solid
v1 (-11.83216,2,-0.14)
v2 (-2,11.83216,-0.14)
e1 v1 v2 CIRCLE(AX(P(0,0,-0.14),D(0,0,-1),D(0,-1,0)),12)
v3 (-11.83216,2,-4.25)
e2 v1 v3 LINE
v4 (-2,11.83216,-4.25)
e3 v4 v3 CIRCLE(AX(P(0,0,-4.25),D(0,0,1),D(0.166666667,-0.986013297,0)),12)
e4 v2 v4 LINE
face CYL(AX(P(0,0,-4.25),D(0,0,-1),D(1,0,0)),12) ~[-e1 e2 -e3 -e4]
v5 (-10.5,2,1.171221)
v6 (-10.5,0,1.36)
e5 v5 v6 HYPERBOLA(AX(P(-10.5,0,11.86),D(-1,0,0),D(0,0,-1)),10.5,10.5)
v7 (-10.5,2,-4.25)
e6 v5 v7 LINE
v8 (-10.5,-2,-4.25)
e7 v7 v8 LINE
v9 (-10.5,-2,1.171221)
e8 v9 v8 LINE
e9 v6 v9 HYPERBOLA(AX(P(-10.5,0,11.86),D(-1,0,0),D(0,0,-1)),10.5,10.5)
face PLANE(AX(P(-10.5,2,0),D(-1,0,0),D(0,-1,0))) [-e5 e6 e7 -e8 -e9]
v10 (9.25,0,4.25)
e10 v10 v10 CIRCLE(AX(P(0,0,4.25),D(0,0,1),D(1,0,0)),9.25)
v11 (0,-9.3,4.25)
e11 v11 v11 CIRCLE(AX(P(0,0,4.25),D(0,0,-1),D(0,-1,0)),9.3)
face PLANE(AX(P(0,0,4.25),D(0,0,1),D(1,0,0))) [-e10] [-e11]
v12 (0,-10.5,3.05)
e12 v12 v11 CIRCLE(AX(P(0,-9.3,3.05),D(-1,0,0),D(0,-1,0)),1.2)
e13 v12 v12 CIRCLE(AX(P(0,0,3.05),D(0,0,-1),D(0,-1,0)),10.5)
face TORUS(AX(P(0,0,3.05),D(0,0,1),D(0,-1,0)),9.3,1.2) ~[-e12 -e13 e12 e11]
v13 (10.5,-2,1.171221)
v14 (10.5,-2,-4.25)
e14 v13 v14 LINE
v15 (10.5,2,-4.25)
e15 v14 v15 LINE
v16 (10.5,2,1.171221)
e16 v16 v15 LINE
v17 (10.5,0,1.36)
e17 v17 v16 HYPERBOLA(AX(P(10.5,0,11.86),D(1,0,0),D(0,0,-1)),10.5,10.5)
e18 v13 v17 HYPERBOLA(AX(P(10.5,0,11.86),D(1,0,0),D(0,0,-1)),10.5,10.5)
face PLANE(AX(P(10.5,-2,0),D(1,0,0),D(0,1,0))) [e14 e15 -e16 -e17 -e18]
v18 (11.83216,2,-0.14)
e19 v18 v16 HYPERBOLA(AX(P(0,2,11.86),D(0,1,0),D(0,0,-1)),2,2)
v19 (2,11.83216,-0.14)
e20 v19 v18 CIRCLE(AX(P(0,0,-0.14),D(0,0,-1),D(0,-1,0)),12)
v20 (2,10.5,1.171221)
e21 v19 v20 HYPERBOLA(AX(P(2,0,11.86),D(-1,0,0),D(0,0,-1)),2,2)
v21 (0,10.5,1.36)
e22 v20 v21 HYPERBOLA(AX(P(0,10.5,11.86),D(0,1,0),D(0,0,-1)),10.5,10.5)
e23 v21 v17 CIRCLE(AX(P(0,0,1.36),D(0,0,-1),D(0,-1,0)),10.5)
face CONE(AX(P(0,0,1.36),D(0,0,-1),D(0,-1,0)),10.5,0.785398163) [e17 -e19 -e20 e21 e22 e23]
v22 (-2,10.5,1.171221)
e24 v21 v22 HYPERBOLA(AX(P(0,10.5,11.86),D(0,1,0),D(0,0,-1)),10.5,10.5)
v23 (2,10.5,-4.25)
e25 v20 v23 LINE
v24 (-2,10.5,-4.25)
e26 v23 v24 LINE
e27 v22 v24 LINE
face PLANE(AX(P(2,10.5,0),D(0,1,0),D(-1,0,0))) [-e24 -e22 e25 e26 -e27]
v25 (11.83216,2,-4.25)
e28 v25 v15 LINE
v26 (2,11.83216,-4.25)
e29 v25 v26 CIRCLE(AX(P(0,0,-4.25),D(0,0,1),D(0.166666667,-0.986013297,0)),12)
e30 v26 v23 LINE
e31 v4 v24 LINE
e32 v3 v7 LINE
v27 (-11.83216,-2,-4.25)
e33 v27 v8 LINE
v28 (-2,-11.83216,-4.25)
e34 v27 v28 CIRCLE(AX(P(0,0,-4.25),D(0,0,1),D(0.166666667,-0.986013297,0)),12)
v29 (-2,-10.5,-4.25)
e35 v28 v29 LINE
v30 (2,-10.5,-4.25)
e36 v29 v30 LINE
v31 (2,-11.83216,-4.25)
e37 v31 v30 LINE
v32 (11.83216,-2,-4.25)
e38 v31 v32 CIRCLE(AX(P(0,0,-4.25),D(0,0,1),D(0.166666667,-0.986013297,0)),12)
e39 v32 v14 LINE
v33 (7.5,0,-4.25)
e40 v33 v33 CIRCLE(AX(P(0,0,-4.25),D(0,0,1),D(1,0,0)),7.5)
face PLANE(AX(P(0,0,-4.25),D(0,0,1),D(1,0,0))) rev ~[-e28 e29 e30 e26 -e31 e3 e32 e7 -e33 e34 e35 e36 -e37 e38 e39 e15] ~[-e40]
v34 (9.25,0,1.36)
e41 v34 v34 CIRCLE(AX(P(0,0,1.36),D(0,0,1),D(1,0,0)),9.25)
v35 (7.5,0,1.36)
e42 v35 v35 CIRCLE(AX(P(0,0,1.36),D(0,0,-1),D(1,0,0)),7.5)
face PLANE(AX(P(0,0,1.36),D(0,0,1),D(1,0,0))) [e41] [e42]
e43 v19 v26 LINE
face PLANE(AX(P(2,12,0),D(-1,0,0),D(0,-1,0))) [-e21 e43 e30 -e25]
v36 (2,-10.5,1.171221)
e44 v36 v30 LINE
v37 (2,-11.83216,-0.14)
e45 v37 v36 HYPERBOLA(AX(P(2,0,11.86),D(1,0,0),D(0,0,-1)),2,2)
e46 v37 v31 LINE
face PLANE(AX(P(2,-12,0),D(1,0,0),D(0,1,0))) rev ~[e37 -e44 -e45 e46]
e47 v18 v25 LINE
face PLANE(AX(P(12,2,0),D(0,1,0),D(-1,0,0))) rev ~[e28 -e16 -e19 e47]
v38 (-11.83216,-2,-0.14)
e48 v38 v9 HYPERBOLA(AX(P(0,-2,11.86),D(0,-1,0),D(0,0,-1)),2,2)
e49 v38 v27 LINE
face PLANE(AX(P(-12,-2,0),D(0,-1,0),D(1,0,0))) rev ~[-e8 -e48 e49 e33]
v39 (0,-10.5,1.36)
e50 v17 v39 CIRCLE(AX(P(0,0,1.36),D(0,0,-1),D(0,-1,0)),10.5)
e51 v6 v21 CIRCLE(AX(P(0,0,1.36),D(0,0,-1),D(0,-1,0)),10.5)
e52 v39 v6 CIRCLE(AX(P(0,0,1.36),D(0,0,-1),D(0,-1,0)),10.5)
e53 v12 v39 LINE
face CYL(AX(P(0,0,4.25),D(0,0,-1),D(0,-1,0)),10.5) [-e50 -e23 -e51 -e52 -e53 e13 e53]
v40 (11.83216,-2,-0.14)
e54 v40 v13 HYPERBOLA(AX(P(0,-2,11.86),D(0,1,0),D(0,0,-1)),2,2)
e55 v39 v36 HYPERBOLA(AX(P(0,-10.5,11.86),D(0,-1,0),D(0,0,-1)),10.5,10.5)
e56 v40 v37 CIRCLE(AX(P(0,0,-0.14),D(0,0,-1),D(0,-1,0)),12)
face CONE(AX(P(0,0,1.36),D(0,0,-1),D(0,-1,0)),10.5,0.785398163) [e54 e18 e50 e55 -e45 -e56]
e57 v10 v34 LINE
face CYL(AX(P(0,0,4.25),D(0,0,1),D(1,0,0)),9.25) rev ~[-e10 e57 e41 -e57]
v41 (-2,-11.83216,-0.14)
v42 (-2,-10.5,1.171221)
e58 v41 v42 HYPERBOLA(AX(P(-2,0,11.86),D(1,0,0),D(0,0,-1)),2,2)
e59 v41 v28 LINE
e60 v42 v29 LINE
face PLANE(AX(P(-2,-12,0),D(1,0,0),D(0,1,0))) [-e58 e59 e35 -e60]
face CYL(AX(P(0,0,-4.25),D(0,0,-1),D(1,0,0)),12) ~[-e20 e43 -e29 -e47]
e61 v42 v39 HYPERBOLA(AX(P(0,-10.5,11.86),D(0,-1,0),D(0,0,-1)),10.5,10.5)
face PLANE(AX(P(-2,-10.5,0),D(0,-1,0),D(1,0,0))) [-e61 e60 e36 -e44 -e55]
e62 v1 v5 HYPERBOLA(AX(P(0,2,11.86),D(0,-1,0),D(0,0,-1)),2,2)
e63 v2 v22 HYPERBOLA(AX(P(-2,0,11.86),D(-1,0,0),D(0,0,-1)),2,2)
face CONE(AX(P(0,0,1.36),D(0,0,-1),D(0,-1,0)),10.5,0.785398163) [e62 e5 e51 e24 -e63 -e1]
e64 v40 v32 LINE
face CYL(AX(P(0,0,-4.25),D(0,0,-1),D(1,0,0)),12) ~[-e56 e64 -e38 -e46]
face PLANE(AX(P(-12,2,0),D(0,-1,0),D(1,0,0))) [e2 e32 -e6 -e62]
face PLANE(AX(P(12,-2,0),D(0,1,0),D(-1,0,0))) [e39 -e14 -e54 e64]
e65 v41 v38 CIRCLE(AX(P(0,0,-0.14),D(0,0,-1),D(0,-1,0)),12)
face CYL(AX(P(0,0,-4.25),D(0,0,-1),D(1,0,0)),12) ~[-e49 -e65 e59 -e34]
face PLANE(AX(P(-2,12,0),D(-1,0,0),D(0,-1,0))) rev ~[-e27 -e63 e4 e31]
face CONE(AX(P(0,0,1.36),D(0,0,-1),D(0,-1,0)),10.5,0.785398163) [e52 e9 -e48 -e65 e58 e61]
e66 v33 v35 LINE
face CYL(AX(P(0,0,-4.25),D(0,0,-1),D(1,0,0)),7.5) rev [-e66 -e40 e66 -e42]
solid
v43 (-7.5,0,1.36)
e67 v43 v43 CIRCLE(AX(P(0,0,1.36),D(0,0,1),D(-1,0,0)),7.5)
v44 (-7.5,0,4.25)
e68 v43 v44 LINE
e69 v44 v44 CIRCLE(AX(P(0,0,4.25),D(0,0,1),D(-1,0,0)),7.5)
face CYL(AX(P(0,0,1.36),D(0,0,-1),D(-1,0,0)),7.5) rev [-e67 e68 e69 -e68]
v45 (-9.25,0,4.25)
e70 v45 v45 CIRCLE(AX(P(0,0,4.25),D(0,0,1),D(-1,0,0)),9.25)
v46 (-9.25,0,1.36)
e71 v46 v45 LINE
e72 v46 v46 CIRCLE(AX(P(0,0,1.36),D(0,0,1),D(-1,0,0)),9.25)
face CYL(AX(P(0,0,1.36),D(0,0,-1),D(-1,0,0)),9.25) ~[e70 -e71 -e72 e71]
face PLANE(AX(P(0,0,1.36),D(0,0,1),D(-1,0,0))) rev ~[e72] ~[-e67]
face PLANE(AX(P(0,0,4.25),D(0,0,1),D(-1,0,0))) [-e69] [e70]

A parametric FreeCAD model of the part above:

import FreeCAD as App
import Part
import Sketcher

V = App.Vector
Q = App.Units.Quantity


def edges_at(feature, points):
    """Names of the edges that pass closest to the given points."""
    edges = feature.Shape.Edges
    near = lambda p: min(range(len(edges)), key=lambda i: edges[i].distToShape(Part.Vertex(*p))[0])
    return sorted({f"Edge{near(p) + 1}" for p in points})

doc = App.newDocument("Part")
body = doc.addObject("PartDesign::Body", "Body")

# Sketch on XY plane
sketch1 = body.newObject("Sketcher::SketchObject", "Sketch")
sketch1.AttachmentSupport = (doc.getObject("XY_Plane"), [""])
sketch1.MapMode = "FlatFace"
sketch1.addGeometry(Part.Circle(V(0, 0, 0), V(0, 0, 1), 12), False)
sketch1.addGeometry(Part.Circle(V(0, 0, 0), V(0, 0, 1), 8), False)
sketch1.addConstraint(Sketcher.Constraint("Coincident", 0, 3, -1, 1))
sketch1.addConstraint(Sketcher.Constraint("Coincident", 1, 3, -1, 1))
sketch1.addConstraint(Sketcher.Constraint("Diameter", 0, 24.0))
sketch1.addConstraint(Sketcher.Constraint("Diameter", 1, 15.0))
pad1 = body.newObject("PartDesign::Pad", "Pad")
pad1.Profile = sketch1
pad1.Type = "TwoLengths"
pad1.Length = 4.25
pad1.Length2 = 4.25

# Sketch on XY plane
sketch2 = body.newObject("Sketcher::SketchObject", "Sketch001")
sketch2.AttachmentSupport = (doc.getObject("XY_Plane"), [""])
sketch2.MapMode = "FlatFace"
sketch2.AttachmentOffset = App.Placement(V(0, 0, 4.25), App.Rotation())
sketch2.addGeometry(Part.Circle(V(0, 0, 0), V(0, 0, 1), 12), False)
sketch2.addGeometry(Part.Circle(V(0, 0, 0), V(0, 0, 1), 11), False)
sketch2.addConstraint(Sketcher.Constraint("Coincident", 0, 3, -1, 1))
sketch2.addConstraint(Sketcher.Constraint("Coincident", 1, 3, -1, 1))
sketch2.addConstraint(Sketcher.Constraint("Diameter", 0, 24.0))
sketch2.addConstraint(Sketcher.Constraint("Diameter", 1, 22.0))
pocket1 = body.newObject("PartDesign::Pocket", "Pocket")
pocket1.Profile = sketch2
pocket1.Length = 0.5

# Sketch on XY plane
sketch3 = body.newObject("Sketcher::SketchObject", "Sketch002")
sketch3.AttachmentSupport = (doc.getObject("XY_Plane"), [""])
sketch3.MapMode = "FlatFace"
sketch3.addGeometry(Part.LineSegment(V(-2, -10.5, 0), V(-2, -12, 0)), False)
sketch3.addGeometry(Part.LineSegment(V(-2, -12, 0), V(2, -12, 0)), False)
sketch3.addGeometry(Part.LineSegment(V(2, -12, 0), V(2, -10.5, 0)), False)
sketch3.addGeometry(Part.LineSegment(V(2, -10.5, 0), V(-2, -10.5, 0)), False)
sketch3.addConstraint(Sketcher.Constraint("Coincident", 0, 2, 1, 1))
sketch3.addConstraint(Sketcher.Constraint("Coincident", 1, 2, 2, 1))
sketch3.addConstraint(Sketcher.Constraint("Coincident", 2, 2, 3, 1))
sketch3.addConstraint(Sketcher.Constraint("Coincident", 3, 2, 0, 1))
sketch3.addConstraint(Sketcher.Constraint("Vertical", 0))
sketch3.addConstraint(Sketcher.Constraint("Horizontal", 1))
sketch3.addConstraint(Sketcher.Constraint("Vertical", 2))
sketch3.addConstraint(Sketcher.Constraint("Horizontal", 3))
sketch3.addConstraint(Sketcher.Constraint("DistanceX", 1, 1, 1, 2, 4.0))
sketch3.addConstraint(Sketcher.Constraint("DistanceY", 0, 2, 0, 1, 1.5))
sketch3.addConstraint(Sketcher.Constraint("DistanceX", 0, 2, -1, 1, 2.0))
sketch3.addConstraint(Sketcher.Constraint("DistanceY", 0, 2, -1, 1, 12.0))
pocket2 = body.newObject("PartDesign::Pocket", "Pocket001")
pocket2.Profile = sketch3
pocket2.Length = 36.989284
pocket2.Midplane = True
doc.recompute()

polarpattern = body.newObject("PartDesign::PolarPattern", "PolarPattern")
polarpattern.Originals = [pocket2]
polarpattern.Axis = (doc.getObject("Z_Axis"), [""])
polarpattern.Angle = 360
polarpattern.Occurrences = 4
body.Tip = polarpattern

# Sketch on YZ plane
sketch4 = body.newObject("Sketcher::SketchObject", "Sketch003")
sketch4.AttachmentSupport = (doc.getObject("YZ_Plane"), [""])
sketch4.MapMode = "FlatFace"
sketch4.addGeometry(Part.LineSegment(V(10.5, 1.4, 0), V(12, -0.1, 0)), False)
sketch4.addGeometry(Part.LineSegment(V(12, -0.1, 0), V(12, 4.2, 0)), False)
sketch4.addGeometry(Part.LineSegment(V(12, 4.2, 0), V(10.5, 4.2, 0)), False)
sketch4.addGeometry(Part.LineSegment(V(10.5, 4.2, 0), V(10.5, 1.4, 0)), False)
sketch4.addConstraint(Sketcher.Constraint("Coincident", 0, 2, 1, 1))
sketch4.addConstraint(Sketcher.Constraint("Coincident", 1, 2, 2, 1))
sketch4.addConstraint(Sketcher.Constraint("Coincident", 2, 2, 3, 1))
sketch4.addConstraint(Sketcher.Constraint("Coincident", 3, 2, 0, 1))
sketch4.addConstraint(Sketcher.Constraint("Vertical", 1))
sketch4.addConstraint(Sketcher.Constraint("Horizontal", 2))
sketch4.addConstraint(Sketcher.Constraint("Vertical", 3))
sketch4.addConstraint(Sketcher.Constraint("Angle", 0, Q("-45 deg")))
sketch4.addConstraint(Sketcher.Constraint("DistanceX", 2, 2, 2, 1, 1.5))
sketch4.addConstraint(Sketcher.Constraint("DistanceX", -1, 1, 0, 2, 12.0))
sketch4.addConstraint(Sketcher.Constraint("DistanceY", 1, 1, 1, 2, 4.39))
sketch4.addConstraint(Sketcher.Constraint("DistanceY", 0, 2, -1, 1, 0.14))
groove = body.newObject("PartDesign::Groove", "Groove")
groove.Profile = sketch4
groove.ReferenceAxis = (sketch4, ["V_Axis"])
groove.Angle = 360
doc.recompute()

fillet = body.newObject("PartDesign::Fillet", "Fillet")
fillet.Base = (groove, edges_at(groove, [(0, 10.5, 4.25)]))
fillet.Radius = 1.2

# Sketch on XY plane
sketch5 = body.newObject("Sketcher::SketchObject", "Sketch004")
sketch5.AttachmentSupport = (doc.getObject("XY_Plane"), [""])
sketch5.MapMode = "FlatFace"
sketch5.AttachmentOffset = App.Placement(V(0, 0, 4.25), App.Rotation())
sketch5.addGeometry(Part.Circle(V(0, 0, 0), V(0, 0, 1), 9), False)
sketch5.addConstraint(Sketcher.Constraint("Coincident", 0, 3, -1, 1))
sketch5.addConstraint(Sketcher.Constraint("Diameter", 0, 18.5))
pocket3 = body.newObject("PartDesign::Pocket", "Pocket002")
pocket3.Profile = sketch5
pocket3.Length = 2.89
body2 = doc.addObject("PartDesign::Body", "Body001")

# Sketch on XY plane
sketch6 = body2.newObject("Sketcher::SketchObject", "Sketch005")
sketch6.AttachmentSupport = (doc.getObject("XY_Plane001"), [""])
sketch6.MapMode = "FlatFace"
sketch6.AttachmentOffset = App.Placement(V(0, 0, 1.36), App.Rotation())
sketch6.addGeometry(Part.Circle(V(0, 0, 0), V(0, 0, 1), 9), False)
sketch6.addGeometry(Part.Circle(V(0, 0, 0), V(0, 0, 1), 8), False)
sketch6.addConstraint(Sketcher.Constraint("Coincident", 0, 3, -1, 1))
sketch6.addConstraint(Sketcher.Constraint("Coincident", 1, 3, -1, 1))
sketch6.addConstraint(Sketcher.Constraint("Diameter", 1, 15.0))
sketch6.addConstraint(Sketcher.Constraint("Diameter", 0, 18.5))
pad2 = body2.newObject("PartDesign::Pad", "Pad001")
pad2.Profile = sketch6
pad2.Length = 2.89

doc.recompute()
